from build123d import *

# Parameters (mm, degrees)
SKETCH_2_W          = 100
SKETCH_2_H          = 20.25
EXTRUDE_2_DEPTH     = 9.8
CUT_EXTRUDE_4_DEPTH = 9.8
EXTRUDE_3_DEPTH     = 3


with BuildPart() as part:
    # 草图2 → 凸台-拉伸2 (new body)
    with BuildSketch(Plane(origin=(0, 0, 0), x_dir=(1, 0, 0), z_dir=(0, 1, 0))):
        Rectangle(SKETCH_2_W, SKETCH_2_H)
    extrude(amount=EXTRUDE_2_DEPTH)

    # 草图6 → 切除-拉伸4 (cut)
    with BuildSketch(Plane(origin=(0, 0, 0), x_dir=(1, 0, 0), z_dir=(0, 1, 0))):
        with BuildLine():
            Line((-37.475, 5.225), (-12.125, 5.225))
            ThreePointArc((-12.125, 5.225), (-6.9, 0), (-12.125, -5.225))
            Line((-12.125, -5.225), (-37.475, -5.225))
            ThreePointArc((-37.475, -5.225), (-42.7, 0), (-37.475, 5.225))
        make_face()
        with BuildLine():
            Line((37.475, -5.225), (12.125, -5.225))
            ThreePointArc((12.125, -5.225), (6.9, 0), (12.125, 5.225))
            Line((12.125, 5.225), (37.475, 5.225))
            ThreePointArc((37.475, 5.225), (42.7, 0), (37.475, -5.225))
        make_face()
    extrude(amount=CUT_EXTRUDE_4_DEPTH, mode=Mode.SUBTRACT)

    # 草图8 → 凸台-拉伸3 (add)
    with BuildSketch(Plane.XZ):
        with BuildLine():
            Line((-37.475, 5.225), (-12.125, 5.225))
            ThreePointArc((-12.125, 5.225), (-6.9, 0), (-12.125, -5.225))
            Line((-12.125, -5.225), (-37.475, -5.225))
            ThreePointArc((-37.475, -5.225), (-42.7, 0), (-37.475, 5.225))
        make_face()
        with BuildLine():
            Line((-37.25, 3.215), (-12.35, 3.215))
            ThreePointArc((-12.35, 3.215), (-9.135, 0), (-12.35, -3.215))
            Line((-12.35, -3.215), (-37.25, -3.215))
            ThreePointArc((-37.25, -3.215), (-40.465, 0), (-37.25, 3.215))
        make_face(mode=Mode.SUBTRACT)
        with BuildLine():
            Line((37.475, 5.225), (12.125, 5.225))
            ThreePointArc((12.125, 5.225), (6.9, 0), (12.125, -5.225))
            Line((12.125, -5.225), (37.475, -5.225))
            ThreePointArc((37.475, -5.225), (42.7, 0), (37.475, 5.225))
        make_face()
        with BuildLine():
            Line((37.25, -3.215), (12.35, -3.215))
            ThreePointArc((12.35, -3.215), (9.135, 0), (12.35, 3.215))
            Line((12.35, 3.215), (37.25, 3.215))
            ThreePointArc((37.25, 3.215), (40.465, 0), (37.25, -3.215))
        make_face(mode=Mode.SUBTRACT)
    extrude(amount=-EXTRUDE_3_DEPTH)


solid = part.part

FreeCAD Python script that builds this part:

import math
import FreeCAD as App
import Part
import Sketcher

V = App.Vector
Q = App.Units.Quantity

doc = App.newDocument("Part")
body = doc.addObject("PartDesign::Body", "Body")

# Sketch on XZ plane
sketch1 = body.newObject("Sketcher::SketchObject", "Sketch")
sketch1.AttachmentSupport = (doc.getObject("XZ_Plane"), [""])
sketch1.MapMode = "FlatFace"
sketch1.addGeometry([
    Part.LineSegment(V(-50, -10, 0), V(-50, 10, 0)),
    Part.LineSegment(V(-50, 10, 0), V(50, 10, 0)),
    Part.LineSegment(V(50, 10, 0), V(50, -10, 0)),
    Part.LineSegment(V(50, -10, 0), V(-50, -10, 0)),
], False)
sketch1.addConstraint([
    Sketcher.Constraint("Coincident", 0, 2, 1, 1),
    Sketcher.Constraint("Coincident", 1, 2, 2, 1),
    Sketcher.Constraint("Coincident", 2, 2, 3, 1),
    Sketcher.Constraint("Coincident", 3, 2, 0, 1),
    Sketcher.Constraint("Vertical", 0),
    Sketcher.Constraint("Horizontal", 1),
    Sketcher.Constraint("Vertical", 2),
    Sketcher.Constraint("Horizontal", 3),
    Sketcher.Constraint("Symmetric", 0, 2, 2, 2, -1, 1),
    Sketcher.Constraint("DistanceX", 1, 1, 1, 2, Q("100 mm")),
    Sketcher.Constraint("DistanceY", 0, 1, 0, 2, Q("20.25 mm")),
])
pad1 = body.newObject("PartDesign::Pad", "Pad")
pad1.Profile = sketch1
pad1.Length = 9.8
pad1.Reversed = True

# Sketch on XZ plane
sketch2 = body.newObject("Sketcher::SketchObject", "Sketch001")
sketch2.AttachmentSupport = (doc.getObject("XZ_Plane"), [""])
sketch2.MapMode = "FlatFace"
sketch2.addGeometry([
    Part.LineSegment(V(-12, -5, 0), V(-37, -5, 0)),  # 0
    Part.ArcOfCircle(Part.Circle(V(-37, 0, 0), V(0, 0, 1), 5), math.radians(90), math.radians(270)),  # 1
    Part.LineSegment(V(-37, 5, 0), V(-12, 5, 0)),  # 2
    Part.ArcOfCircle(Part.Circle(V(-12, 0, 0), V(0, 0, 1), 5), math.radians(-90), math.radians(90)),  # 3
    Part.LineSegment(V(12, 5, 0), V(37, 5, 0)),  # 4
    Part.ArcOfCircle(Part.Circle(V(37, 0, 0), V(0, 0, 1), 5), math.radians(-90), math.radians(90)),  # 5
    Part.LineSegment(V(37, -5, 0), V(12, -5, 0)),  # 6
    Part.ArcOfCircle(Part.Circle(V(12, 0, 0), V(0, 0, 1), 5), math.radians(90), math.radians(270)),  # 7
], False)
sketch2.addConstraint([
    Sketcher.Constraint("Tangent", 0, 2, 1, 2),
    Sketcher.Constraint("Tangent", 1, 1, 2, 1),
    Sketcher.Constraint("Tangent", 2, 2, 3, 2),
    Sketcher.Constraint("Tangent", 3, 1, 0, 1),
    Sketcher.Constraint("Tangent", 4, 2, 5, 2),
    Sketcher.Constraint("Tangent", 5, 1, 6, 1),
    Sketcher.Constraint("Tangent", 6, 2, 7, 2),
    Sketcher.Constraint("Tangent", 7, 1, 4, 1),
    Sketcher.Constraint("Horizontal", 0),
    Sketcher.Constraint("Horizontal", 2),
    Sketcher.Constraint("Horizontal", 4),
    Sketcher.Constraint("Horizontal", 6),
    Sketcher.Constraint("Equal", 3, 5),
    Sketcher.Constraint("Symmetric", 1, 3, 5, 3, -1, 1),
    Sketcher.Constraint("Symmetric", 3, 3, 7, 3, -2),
    Sketcher.Constraint("Radius", 1, Q("5.225 mm")),
    Sketcher.Constraint("DistanceX", 0, 2, 0, 1, Q("25.35 mm")),
    Sketcher.Constraint("DistanceX", 3, 3, 5, 3, Q("49.6 mm")),
])
pocket1 = body.newObject("PartDesign::Pocket", "Pocket")
pocket1.Profile = sketch2
pocket1.Length = 9.8

# Sketch on XZ plane
sketch3 = body.newObject("Sketcher::SketchObject", "Sketch002")
sketch3.AttachmentSupport = (doc.getObject("XZ_Plane"), [""])
sketch3.MapMode = "FlatFace"
sketch3.addGeometry([
    Part.LineSegment(V(-12.1, 5.2, 0), V(-37.5, 5.2, 0)),  # 0
    Part.ArcOfCircle(Part.Circle(V(-37.5, 0, 0), V(0, 0, 1), 5.2), math.radians(90), math.radians(270)),  # 1
    Part.LineSegment(V(-37.5, -5.2, 0), V(-12.1, -5.2, 0)),  # 2
    Part.ArcOfCircle(Part.Circle(V(-12.1, 0, 0), V(0, 0, 1), 5.2), math.radians(-90), math.radians(90)),  # 3
    Part.LineSegment(V(-37.2, 3.2, 0), V(-12.3, 3.2, 0)),  # 4
    Part.ArcOfCircle(Part.Circle(V(-12.3, 0, 0), V(0, 0, 1), 3.2), math.radians(-90), math.radians(90)),  # 5
    Part.LineSegment(V(-12.3, -3.2, 0), V(-37.2, -3.2, 0)),  # 6
    Part.ArcOfCircle(Part.Circle(V(-37.2, 0, 0), V(0, 0, 1), 3.2), math.radians(90), math.radians(270)),  # 7
    Part.LineSegment(V(37.5, 5.2, 0), V(12.1, 5.2, 0)),  # 8
    Part.ArcOfCircle(Part.Circle(V(12.1, 0, 0), V(0, 0, 1), 5.2), math.radians(90), math.radians(270)),  # 9
    Part.LineSegment(V(12.1, -5.2, 0), V(37.5, -5.2, 0)),  # 10
    Part.ArcOfCircle(Part.Circle(V(37.5, 0, 0), V(0, 0, 1), 5.2), math.radians(-90), math.radians(90)),  # 11
    Part.ArcOfCircle(Part.Circle(V(37.2, 0, 0), V(0, 0, 1), 3.2), math.radians(-90), math.radians(90)),  # 12
    Part.LineSegment(V(37.2, -3.2, 0), V(12.3, -3.2, 0)),  # 13
    Part.ArcOfCircle(Part.Circle(V(12.3, 0, 0), V(0, 0, 1), 3.2), math.radians(90), math.radians(270)),  # 14
    Part.LineSegment(V(12.3, 3.2, 0), V(37.2, 3.2, 0)),  # 15
], False)
sketch3.addConstraint([
    Sketcher.Constraint("Tangent", 0, 2, 1, 1),
    Sketcher.Constraint("Tangent", 1, 2, 2, 1),
    Sketcher.Constraint("Tangent", 2, 2, 3, 1),
    Sketcher.Constraint("Tangent", 3, 2, 0, 1),
    Sketcher.Constraint("Tangent", 4, 2, 5, 2),
    Sketcher.Constraint("Tangent", 5, 1, 6, 1),
    Sketcher.Constraint("Tangent", 6, 2, 7, 2),
    Sketcher.Constraint("Tangent", 7, 1, 4, 1),
    Sketcher.Constraint("Tangent", 8, 2, 9, 1),
    Sketcher.Constraint("Tangent", 9, 2, 10, 1),
    Sketcher.Constraint("Tangent", 10, 2, 11, 1),
    Sketcher.Constraint("Tangent", 11, 2, 8, 1),
    Sketcher.Constraint("Tangent", 12, 1, 13, 1),
    Sketcher.Constraint("Tangent", 13, 2, 14, 2),
    Sketcher.Constraint("Tangent", 14, 1, 15, 1),
    Sketcher.Constraint("Tangent", 15, 2, 12, 2),
    Sketcher.Constraint("Horizontal", 0),
    Sketcher.Constraint("Horizontal", 2),
    Sketcher.Constraint("Horizontal", 4),
    Sketcher.Constraint("Horizontal", 6),
    Sketcher.Constraint("Horizontal", 8),
    Sketcher.Constraint("Horizontal", 10),
    Sketcher.Constraint("Horizontal", 13),
    Sketcher.Constraint("Horizontal", 15),
    Sketcher.Constraint("Equal", 3, 9),
    Sketcher.Constraint("Equal", 7, 12),
    Sketcher.Constraint("Symmetric", 3, 3, 9, 3, -1, 1),
    Sketcher.Constraint("Symmetric", 7, 3, 12, 3, -1, 1),
    Sketcher.Constraint("Symmetric", 1, 3, 11, 3, -2),
    Sketcher.Constraint("Symmetric", 5, 3, 14, 3, -2),
    Sketcher.Constraint("DistanceX", 4, 1, 4, 2, Q("24.9 mm")),
    Sketcher.Constraint("Radius", 1, Q("5.225 mm")),
    Sketcher.Constraint("Radius", 5, Q("3.215 mm")),
    Sketcher.Constraint("DistanceX", 0, 2, 0, 1, Q("25.35 mm")),
    Sketcher.Constraint("DistanceX", 1, 3, 9, 3, Q("49.6 mm")),
    Sketcher.Constraint("DistanceX", 5, 3, 12, 3, Q("49.6 mm")),
])
pad2 = body.newObject("PartDesign::Pad", "Pad001")
pad2.Profile = sketch3
pad2.Length = 3
pad2.Reversed = True

doc.recompute()
